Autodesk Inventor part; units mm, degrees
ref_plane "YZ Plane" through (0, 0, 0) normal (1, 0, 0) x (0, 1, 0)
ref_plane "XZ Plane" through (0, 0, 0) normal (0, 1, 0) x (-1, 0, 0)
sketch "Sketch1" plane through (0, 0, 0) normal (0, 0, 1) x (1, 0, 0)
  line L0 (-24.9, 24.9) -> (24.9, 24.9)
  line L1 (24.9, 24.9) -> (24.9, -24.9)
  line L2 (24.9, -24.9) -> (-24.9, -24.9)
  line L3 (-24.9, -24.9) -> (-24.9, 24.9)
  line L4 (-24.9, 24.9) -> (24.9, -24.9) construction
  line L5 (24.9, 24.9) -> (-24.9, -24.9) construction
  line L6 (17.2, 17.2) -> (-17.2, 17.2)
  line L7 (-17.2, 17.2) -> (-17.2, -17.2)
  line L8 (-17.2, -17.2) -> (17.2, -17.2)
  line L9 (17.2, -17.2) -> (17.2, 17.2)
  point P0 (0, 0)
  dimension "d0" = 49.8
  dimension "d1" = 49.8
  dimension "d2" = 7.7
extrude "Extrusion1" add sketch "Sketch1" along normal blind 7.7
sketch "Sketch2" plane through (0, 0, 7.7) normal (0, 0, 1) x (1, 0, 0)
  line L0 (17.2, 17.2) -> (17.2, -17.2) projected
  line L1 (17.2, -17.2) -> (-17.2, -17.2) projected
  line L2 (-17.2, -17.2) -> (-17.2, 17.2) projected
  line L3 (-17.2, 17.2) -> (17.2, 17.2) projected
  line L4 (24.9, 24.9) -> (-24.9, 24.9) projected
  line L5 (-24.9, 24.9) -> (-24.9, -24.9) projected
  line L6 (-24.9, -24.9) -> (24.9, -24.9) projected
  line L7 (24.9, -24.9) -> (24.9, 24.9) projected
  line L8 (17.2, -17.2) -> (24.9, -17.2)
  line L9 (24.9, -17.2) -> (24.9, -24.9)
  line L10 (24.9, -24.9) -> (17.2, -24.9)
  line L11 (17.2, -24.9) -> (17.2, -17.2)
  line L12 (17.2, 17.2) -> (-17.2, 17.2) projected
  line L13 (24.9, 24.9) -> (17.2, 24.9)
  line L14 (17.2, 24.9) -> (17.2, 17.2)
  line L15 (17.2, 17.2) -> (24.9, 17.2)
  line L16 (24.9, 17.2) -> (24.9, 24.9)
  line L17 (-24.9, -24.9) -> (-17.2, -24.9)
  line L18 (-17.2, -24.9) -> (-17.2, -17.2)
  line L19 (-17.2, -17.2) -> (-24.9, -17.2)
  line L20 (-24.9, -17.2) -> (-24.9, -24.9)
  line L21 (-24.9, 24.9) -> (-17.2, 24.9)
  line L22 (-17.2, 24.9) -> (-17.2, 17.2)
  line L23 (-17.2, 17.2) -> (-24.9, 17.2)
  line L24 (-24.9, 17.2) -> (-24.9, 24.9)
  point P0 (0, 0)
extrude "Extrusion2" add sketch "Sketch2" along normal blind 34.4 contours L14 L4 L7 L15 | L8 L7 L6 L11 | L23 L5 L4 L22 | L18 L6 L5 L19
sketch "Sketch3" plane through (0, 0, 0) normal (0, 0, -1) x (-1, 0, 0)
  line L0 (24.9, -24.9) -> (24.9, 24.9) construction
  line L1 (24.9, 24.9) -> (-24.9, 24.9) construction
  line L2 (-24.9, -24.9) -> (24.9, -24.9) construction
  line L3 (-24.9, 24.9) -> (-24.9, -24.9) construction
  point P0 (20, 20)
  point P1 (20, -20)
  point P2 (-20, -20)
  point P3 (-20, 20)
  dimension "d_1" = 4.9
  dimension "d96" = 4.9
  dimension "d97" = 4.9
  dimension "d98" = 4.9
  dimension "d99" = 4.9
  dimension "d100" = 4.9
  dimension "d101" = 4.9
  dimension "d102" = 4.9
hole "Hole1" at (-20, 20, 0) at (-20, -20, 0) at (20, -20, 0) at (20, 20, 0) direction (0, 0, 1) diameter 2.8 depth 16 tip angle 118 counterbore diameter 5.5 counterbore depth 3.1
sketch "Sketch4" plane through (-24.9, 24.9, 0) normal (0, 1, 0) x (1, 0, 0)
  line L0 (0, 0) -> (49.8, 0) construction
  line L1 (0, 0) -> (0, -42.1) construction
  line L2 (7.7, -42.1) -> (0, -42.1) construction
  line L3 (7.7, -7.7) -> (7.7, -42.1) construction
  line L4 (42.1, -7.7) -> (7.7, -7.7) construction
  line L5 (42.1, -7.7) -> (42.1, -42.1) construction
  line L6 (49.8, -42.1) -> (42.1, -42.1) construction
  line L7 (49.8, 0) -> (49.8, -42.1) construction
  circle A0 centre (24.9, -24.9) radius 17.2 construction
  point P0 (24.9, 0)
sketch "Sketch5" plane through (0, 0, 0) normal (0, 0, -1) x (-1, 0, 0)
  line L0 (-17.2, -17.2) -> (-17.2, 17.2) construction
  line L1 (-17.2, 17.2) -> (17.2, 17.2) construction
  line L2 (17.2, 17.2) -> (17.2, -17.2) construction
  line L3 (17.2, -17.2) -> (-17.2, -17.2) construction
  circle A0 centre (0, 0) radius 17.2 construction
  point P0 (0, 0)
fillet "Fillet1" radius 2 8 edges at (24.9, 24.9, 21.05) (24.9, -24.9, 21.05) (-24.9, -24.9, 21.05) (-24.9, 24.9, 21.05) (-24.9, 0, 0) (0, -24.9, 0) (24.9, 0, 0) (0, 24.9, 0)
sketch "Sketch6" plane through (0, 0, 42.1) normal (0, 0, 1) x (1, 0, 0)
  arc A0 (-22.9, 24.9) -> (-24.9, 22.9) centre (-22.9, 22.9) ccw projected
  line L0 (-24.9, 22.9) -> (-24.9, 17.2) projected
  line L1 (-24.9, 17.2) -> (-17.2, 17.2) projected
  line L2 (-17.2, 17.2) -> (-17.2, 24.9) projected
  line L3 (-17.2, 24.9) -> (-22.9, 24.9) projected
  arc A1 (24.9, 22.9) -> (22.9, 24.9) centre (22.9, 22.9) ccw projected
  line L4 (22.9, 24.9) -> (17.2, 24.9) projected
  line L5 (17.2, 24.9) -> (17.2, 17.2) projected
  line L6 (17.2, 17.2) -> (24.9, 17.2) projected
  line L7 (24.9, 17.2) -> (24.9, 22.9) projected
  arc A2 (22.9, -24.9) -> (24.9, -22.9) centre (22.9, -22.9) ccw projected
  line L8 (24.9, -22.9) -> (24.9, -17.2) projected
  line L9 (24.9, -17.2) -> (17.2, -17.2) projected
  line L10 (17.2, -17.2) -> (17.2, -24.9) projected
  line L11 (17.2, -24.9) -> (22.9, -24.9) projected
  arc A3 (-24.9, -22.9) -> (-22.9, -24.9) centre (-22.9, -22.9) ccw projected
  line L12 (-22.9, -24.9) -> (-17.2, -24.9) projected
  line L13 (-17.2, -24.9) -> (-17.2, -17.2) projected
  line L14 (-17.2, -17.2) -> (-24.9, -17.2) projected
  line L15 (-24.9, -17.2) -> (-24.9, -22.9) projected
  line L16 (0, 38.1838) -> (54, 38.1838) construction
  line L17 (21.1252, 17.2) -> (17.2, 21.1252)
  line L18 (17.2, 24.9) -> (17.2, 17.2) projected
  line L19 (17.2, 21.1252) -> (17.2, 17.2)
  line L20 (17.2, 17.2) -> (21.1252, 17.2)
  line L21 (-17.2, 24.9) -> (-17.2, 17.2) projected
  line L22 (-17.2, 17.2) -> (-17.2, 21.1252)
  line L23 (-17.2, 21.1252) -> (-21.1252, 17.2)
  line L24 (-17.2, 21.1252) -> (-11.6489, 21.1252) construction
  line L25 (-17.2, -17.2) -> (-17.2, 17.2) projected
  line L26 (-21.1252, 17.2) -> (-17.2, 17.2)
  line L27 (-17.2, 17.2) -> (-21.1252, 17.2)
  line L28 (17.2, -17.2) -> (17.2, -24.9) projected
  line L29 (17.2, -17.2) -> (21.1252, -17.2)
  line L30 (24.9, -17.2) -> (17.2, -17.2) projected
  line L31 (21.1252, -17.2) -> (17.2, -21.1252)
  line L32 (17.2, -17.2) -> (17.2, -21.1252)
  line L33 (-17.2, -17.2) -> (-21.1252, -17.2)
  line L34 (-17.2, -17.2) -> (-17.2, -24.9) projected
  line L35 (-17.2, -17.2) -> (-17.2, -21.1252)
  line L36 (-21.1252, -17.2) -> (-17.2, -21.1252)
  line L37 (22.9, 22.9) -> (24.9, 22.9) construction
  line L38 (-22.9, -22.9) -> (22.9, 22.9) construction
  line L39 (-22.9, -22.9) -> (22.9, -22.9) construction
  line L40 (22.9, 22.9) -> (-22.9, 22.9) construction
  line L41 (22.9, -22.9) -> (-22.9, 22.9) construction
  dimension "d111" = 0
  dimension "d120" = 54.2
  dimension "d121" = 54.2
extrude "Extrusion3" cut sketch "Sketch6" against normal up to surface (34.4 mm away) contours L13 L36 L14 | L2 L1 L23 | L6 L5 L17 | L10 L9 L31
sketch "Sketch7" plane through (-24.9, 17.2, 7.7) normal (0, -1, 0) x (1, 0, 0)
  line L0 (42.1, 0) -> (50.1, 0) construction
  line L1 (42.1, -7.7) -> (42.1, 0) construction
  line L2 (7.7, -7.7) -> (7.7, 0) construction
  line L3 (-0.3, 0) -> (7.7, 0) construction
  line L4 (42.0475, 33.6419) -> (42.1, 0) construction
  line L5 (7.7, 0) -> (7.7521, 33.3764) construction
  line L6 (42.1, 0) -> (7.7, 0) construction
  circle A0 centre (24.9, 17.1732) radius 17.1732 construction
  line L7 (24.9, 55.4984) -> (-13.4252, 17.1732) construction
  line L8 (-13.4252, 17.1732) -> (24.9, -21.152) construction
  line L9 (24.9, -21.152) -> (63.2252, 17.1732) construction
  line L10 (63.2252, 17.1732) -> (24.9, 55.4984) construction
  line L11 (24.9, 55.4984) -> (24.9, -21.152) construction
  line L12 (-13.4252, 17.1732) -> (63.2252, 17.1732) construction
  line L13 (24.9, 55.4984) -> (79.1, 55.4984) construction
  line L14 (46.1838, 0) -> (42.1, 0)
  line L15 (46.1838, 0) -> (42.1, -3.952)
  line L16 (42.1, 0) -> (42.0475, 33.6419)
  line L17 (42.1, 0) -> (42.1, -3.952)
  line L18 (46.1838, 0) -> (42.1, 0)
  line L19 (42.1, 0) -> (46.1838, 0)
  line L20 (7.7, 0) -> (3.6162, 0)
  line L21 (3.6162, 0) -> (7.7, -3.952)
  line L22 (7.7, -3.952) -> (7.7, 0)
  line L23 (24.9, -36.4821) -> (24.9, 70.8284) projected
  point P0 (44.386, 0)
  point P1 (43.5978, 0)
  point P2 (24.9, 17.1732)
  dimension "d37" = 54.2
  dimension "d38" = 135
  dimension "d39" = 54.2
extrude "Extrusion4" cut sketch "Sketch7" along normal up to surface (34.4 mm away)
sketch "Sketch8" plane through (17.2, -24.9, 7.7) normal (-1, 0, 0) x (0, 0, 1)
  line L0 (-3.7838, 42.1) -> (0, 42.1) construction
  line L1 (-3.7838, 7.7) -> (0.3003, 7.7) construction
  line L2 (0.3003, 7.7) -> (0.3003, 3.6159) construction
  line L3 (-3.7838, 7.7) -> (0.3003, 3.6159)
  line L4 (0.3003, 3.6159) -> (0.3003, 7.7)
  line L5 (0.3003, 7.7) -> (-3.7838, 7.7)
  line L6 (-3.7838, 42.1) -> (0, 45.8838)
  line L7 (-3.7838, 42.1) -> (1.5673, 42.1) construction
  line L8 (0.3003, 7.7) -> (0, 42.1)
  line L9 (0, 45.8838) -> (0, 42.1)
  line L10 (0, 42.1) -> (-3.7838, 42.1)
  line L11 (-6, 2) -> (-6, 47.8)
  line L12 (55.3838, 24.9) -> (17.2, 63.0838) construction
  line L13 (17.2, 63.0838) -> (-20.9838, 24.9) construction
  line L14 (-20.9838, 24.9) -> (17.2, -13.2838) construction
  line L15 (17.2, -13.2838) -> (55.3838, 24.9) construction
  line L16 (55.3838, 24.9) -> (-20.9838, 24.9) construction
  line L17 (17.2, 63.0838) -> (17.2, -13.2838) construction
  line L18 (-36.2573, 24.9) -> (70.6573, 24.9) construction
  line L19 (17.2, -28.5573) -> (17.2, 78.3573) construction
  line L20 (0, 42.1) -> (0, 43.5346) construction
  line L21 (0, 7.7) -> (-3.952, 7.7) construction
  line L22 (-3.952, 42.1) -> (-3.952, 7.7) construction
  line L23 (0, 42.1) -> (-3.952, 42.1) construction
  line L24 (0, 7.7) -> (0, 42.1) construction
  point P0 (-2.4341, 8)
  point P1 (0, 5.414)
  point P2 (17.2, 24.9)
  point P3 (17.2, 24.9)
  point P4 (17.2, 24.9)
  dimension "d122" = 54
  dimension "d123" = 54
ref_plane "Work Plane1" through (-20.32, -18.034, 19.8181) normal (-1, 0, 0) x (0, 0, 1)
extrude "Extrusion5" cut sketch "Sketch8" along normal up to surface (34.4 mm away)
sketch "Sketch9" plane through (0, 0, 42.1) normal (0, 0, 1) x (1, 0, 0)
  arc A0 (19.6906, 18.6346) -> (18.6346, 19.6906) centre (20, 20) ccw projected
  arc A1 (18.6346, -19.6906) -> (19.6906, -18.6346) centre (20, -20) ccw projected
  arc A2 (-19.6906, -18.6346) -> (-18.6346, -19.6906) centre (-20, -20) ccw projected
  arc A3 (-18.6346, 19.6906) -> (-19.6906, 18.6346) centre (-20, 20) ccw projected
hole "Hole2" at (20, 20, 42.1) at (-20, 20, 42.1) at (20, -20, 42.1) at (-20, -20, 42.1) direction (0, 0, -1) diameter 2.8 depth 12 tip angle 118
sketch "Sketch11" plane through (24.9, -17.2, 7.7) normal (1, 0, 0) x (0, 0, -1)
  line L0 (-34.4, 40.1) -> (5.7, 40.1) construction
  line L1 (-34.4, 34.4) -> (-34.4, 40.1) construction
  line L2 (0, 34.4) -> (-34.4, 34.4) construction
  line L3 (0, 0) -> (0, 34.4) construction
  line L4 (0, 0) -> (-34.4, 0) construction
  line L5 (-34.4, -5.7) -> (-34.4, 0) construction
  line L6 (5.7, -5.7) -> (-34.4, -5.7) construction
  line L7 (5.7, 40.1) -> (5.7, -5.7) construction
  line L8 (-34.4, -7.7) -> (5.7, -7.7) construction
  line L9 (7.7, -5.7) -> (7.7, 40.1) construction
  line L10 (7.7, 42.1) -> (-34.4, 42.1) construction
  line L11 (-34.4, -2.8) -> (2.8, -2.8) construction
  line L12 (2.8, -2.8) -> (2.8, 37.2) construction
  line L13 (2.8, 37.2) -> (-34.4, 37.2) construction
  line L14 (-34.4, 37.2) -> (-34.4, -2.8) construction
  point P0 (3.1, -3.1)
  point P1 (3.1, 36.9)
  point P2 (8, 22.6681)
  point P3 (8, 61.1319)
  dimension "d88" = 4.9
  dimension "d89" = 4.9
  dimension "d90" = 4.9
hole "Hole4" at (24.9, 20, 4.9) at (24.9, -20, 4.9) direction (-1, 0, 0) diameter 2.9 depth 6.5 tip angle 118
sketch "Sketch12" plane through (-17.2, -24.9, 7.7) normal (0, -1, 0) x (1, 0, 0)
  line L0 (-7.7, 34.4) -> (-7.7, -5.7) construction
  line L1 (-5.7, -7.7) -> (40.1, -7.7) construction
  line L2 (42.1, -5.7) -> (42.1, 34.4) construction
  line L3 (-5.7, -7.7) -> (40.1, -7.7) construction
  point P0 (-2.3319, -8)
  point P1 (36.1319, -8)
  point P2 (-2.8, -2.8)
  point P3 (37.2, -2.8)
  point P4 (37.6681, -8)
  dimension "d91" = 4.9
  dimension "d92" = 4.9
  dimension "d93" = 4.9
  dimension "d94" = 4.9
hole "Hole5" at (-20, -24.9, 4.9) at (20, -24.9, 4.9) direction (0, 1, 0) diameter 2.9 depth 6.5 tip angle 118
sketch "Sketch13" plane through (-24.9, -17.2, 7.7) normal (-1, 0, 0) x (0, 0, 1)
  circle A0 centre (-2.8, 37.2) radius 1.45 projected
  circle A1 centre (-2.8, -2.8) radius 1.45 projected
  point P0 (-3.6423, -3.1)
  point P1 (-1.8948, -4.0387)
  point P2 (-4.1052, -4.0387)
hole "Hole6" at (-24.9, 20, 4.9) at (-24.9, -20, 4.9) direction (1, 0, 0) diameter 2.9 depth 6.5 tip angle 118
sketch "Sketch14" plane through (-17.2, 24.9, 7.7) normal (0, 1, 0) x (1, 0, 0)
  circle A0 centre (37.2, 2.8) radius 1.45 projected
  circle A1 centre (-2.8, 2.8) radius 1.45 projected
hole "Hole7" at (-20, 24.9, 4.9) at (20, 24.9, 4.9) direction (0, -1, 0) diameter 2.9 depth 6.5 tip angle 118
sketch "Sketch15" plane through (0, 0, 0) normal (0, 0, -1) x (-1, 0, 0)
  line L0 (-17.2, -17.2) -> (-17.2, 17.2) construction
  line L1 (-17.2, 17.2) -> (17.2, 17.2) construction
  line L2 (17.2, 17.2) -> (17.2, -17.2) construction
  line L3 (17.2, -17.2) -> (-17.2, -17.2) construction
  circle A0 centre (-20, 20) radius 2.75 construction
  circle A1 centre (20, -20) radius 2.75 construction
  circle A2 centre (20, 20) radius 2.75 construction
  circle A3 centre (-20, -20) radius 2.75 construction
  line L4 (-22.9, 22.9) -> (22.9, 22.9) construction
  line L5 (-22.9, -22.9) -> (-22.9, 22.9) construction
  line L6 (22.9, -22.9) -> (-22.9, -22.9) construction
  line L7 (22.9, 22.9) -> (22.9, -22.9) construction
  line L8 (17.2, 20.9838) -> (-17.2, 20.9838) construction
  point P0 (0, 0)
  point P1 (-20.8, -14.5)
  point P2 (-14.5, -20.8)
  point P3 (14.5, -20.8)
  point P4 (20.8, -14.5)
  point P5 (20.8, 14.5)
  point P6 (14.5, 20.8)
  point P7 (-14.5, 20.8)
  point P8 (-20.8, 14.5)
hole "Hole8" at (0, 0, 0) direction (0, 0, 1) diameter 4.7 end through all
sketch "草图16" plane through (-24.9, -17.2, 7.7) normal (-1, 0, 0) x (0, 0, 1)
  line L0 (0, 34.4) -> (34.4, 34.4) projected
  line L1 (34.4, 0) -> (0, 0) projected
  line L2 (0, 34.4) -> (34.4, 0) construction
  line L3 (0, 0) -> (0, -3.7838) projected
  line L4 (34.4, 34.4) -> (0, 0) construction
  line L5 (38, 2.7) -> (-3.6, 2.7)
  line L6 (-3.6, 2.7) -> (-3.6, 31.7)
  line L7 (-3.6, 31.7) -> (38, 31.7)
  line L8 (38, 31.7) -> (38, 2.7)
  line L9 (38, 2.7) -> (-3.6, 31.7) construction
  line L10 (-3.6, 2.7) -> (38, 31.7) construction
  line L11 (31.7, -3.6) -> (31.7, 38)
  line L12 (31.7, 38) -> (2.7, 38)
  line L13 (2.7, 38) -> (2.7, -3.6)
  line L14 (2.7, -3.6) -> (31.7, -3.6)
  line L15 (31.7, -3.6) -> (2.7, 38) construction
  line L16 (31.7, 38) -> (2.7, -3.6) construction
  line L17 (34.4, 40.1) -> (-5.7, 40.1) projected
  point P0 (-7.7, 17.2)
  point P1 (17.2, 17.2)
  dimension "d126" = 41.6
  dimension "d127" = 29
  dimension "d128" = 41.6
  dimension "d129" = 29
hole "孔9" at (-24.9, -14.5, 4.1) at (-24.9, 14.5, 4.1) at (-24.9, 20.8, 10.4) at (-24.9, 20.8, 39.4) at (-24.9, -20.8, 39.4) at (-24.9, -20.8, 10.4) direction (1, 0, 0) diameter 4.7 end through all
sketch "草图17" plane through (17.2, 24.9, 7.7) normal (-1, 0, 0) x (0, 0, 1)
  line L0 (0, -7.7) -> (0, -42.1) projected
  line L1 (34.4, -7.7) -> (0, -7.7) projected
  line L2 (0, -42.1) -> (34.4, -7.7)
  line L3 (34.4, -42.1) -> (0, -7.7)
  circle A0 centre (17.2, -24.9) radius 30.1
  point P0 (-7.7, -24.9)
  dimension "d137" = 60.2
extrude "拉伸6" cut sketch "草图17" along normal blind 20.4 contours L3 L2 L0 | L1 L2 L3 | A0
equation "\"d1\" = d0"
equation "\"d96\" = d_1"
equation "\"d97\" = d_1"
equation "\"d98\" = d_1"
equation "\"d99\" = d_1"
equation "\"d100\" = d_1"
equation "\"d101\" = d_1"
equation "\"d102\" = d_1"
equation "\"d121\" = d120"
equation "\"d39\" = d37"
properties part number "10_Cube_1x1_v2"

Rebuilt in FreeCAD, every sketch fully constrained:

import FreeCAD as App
import Part
import Sketcher

V = App.Vector
Q = App.Units.Quantity


def edges_at(feature, points):
    """Names of the edges that pass closest to the given points."""
    edges = feature.Shape.Edges
    near = lambda p: min(range(len(edges)), key=lambda i: edges[i].distToShape(Part.Vertex(*p))[0])
    return sorted({f"Edge{near(p) + 1}" for p in points})


def add_polygon(sketch, points):
    """Adds a closed chain of lines whose ends are joined by coincident constraints."""
    first, n = sketch.GeometryCount, len(points)
    for a, b in zip(points, points[1:] + points[:1]):
        sketch.addGeometry(Part.LineSegment(App.Vector(*a, 0), App.Vector(*b, 0)), False)
    for i in range(n):
        sketch.addConstraint(Sketcher.Constraint("Coincident", first + i, 2, first + (i + 1) % n, 1))

doc = App.newDocument("Part")
body = doc.addObject("PartDesign::Body", "Body")

sketch1 = body.newObject("Sketcher::SketchObject", "Sketch")
sketch1.AttachmentSupport = (doc.getObject("XY_Plane"), [""])
sketch1.MapMode = "FlatFace"
add_polygon(sketch1, [(25, 25), (-25, 25), (-25, -25), (25, -25)])
add_polygon(sketch1, [(-17, 17), (17, 17), (17, -17), (-17, -17)])
sketch1.addConstraint(Sketcher.Constraint("Horizontal", 0))
sketch1.addConstraint(Sketcher.Constraint("Vertical", 1))
sketch1.addConstraint(Sketcher.Constraint("Horizontal", 2))
sketch1.addConstraint(Sketcher.Constraint("Vertical", 3))
sketch1.addConstraint(Sketcher.Constraint("Horizontal", 4))
sketch1.addConstraint(Sketcher.Constraint("Vertical", 5))
sketch1.addConstraint(Sketcher.Constraint("Horizontal", 6))
sketch1.addConstraint(Sketcher.Constraint("Vertical", 7))
sketch1.addConstraint(Sketcher.Constraint("Symmetric", 0, 2, 2, 2, -1, 1))
sketch1.addConstraint(Sketcher.Constraint("Symmetric", 4, 2, 6, 2, -1, 1))
sketch1.addConstraint(Sketcher.Constraint("Equal", 2, 1))
sketch1.addConstraint(Sketcher.Constraint("Equal", 6, 5))
sketch1.addConstraint(Sketcher.Constraint("DistanceX", 0, 2, 0, 1, Q("49.8 mm")))
sketch1.addConstraint(Sketcher.Constraint("DistanceX", 4, 2, 3, 2, Q("7.7 mm")))
pad1 = body.newObject("PartDesign::Pad", "Pad")
pad1.Profile = sketch1
pad1.Length = 7.7

sketch2 = body.newObject("Sketcher::SketchObject", "Sketch001")
sketch2.AttachmentSupport = (doc.getObject("XY_Plane"), [""])
sketch2.MapMode = "FlatFace"
sketch2.AttachmentOffset = App.Placement(V(0, 0, 7.7), App.Rotation())
add_polygon(sketch2, [(17, 25), (17, 17), (25, 17), (25, 25)])
add_polygon(sketch2, [(25, -17), (17, -17), (17, -25), (25, -25)])
add_polygon(sketch2, [(-25, 17), (-17, 17), (-17, 25), (-25, 25)])
add_polygon(sketch2, [(-17, -25), (-17, -17), (-25, -17), (-25, -25)])
sketch2.addConstraint(Sketcher.Constraint("Vertical", 0))
sketch2.addConstraint(Sketcher.Constraint("Horizontal", 1))
sketch2.addConstraint(Sketcher.Constraint("Vertical", 2))
sketch2.addConstraint(Sketcher.Constraint("Horizontal", 3))
sketch2.addConstraint(Sketcher.Constraint("Horizontal", 4))
sketch2.addConstraint(Sketcher.Constraint("Vertical", 5))
sketch2.addConstraint(Sketcher.Constraint("Horizontal", 6))
sketch2.addConstraint(Sketcher.Constraint("Vertical", 7))
sketch2.addConstraint(Sketcher.Constraint("Horizontal", 8))
sketch2.addConstraint(Sketcher.Constraint("Vertical", 9))
sketch2.addConstraint(Sketcher.Constraint("Horizontal", 10))
sketch2.addConstraint(Sketcher.Constraint("Vertical", 11))
sketch2.addConstraint(Sketcher.Constraint("Vertical", 12))
sketch2.addConstraint(Sketcher.Constraint("Horizontal", 13))
sketch2.addConstraint(Sketcher.Constraint("Vertical", 14))
sketch2.addConstraint(Sketcher.Constraint("Horizontal", 15))
sketch2.addConstraint(Sketcher.Constraint("Symmetric", 4, 2, 8, 2, -1, 1))
sketch2.addConstraint(Sketcher.Constraint("Symmetric", 6, 2, 10, 2, -1, 1))
sketch2.addConstraint(Sketcher.Constraint("Symmetric", 0, 2, 12, 2, -1, 1))
sketch2.addConstraint(Sketcher.Constraint("Symmetric", 2, 2, 14, 2, -1, 1))
sketch2.addConstraint(Sketcher.Constraint("Symmetric", 0, 2, 8, 2, -2))
sketch2.addConstraint(Sketcher.Constraint("Symmetric", 2, 2, 10, 2, -2))
sketch2.addConstraint(Sketcher.Constraint("Equal", 15, 0))
sketch2.addConstraint(Sketcher.Constraint("DistanceX", 1, 1, 1, 2, Q("7.7 mm")))
sketch2.addConstraint(Sketcher.Constraint("DistanceX", -1, 1, 0, 2, Q("17.2 mm")))
sketch2.addConstraint(Sketcher.Constraint("DistanceY", -1, 1, 0, 2, Q("17.2 mm")))
pad2 = body.newObject("PartDesign::Pad", "Pad001")
pad2.Profile = sketch2
pad2.Length = 34.4

sketch3 = body.newObject("Sketcher::SketchObject", "Sketch002")
sketch3.AttachmentSupport = (doc.getObject("XY_Plane"), [""])
sketch3.MapMode = "FlatFace"
sketch3.addGeometry(Part.Circle(V(-20, 20, 0), V(0, 0, 1), 1.4), False)
sketch3.addGeometry(Part.Circle(V(-20, -20, 0), V(0, 0, 1), 1.4), False)
sketch3.addGeometry(Part.Circle(V(20, -20, 0), V(0, 0, 1), 1.4), False)
sketch3.addGeometry(Part.Circle(V(20, 20, 0), V(0, 0, 1), 1.4), False)
sketch3.addConstraint(Sketcher.Constraint("Equal", 0, 1))
sketch3.addConstraint(Sketcher.Constraint("Equal", 1, 2))
sketch3.addConstraint(Sketcher.Constraint("Equal", 2, 3))
sketch3.addConstraint(Sketcher.Constraint("Symmetric", 0, 3, 2, 3, -1, 1))
sketch3.addConstraint(Sketcher.Constraint("Symmetric", 1, 3, 3, 3, -1, 1))
sketch3.addConstraint(Sketcher.Constraint("Symmetric", 1, 3, 2, 3, -2))
sketch3.addConstraint(Sketcher.Constraint("Diameter", 0, Q("2.8 mm")))
sketch3.addConstraint(Sketcher.Constraint("DistanceX", 0, 3, -1, 1, Q("20 mm")))
sketch3.addConstraint(Sketcher.Constraint("DistanceY", -1, 1, 0, 3, Q("20 mm")))
doc.recompute()
hole = body.newObject("PartDesign::Hole", "Hole")
hole.Profile = sketch3
hole.ThreadType = "None"
hole.Diameter = 2.8
hole.DepthType = "Dimension"
hole.Depth = 16
hole.DrillPoint = "Angled"
hole.DrillPointAngle = 118
hole.HoleCutType = "Counterbore"
hole.HoleCutDiameter = 5.5
hole.HoleCutDepth = 3.1
hole.Reversed = True
doc.recompute()

fillet = body.newObject("PartDesign::Fillet", "Fillet")
fillet.Base = (hole, edges_at(hole, [
    (24.9, 24.9, 21.05),
    (24.9, -24.9, 21.05),
    (-24.9, -24.9, 21.05),
    (-24.9, 24.9, 21.05),
    (-24.9, 0, 0),
    (0, -24.9, 0),
    (24.9, 0, 0),
    (0, 24.9, 0),
]))
fillet.Radius = 2

sketch4 = body.newObject("Sketcher::SketchObject", "Sketch003")
sketch4.AttachmentSupport = (doc.getObject("XY_Plane"), [""])
sketch4.MapMode = "FlatFace"
sketch4.AttachmentOffset = App.Placement(V(0, 0, 42.1), App.Rotation())
add_polygon(sketch4, [(-17.2, -21.1), (-17.2, -17.2), (-21.1, -17.2)])
add_polygon(sketch4, [(-17.2, 17.2), (-17.2, 21.1), (-21.1, 17.2)])
add_polygon(sketch4, [(17.2, 17.2), (21.1, 17.2), (17.2, 21.1)])
add_polygon(sketch4, [(17.2, -17.2), (17.2, -21.1), (21.1, -17.2)])
sketch4.addConstraint(Sketcher.Constraint("Vertical", 0))
sketch4.addConstraint(Sketcher.Constraint("Horizontal", 1))
sketch4.addConstraint(Sketcher.Constraint("Vertical", 3))
sketch4.addConstraint(Sketcher.Constraint("Horizontal", 5))
sketch4.addConstraint(Sketcher.Constraint("Horizontal", 6))
sketch4.addConstraint(Sketcher.Constraint("Vertical", 8))
sketch4.addConstraint(Sketcher.Constraint("Vertical", 9))
sketch4.addConstraint(Sketcher.Constraint("Horizontal", 11))
sketch4.addConstraint(Sketcher.Constraint("Symmetric", 1, 2, 6, 2, -1, 1))
sketch4.addConstraint(Sketcher.Constraint("Symmetric", 2, 2, 7, 2, -1, 1))
sketch4.addConstraint(Sketcher.Constraint("Symmetric", 3, 2, 9, 2, -1, 1))
sketch4.addConstraint(Sketcher.Constraint("Symmetric", 4, 2, 10, 2, -1, 1))
sketch4.addConstraint(Sketcher.Constraint("Symmetric", 4, 2, 6, 2, -2))
sketch4.addConstraint(Sketcher.Constraint("Symmetric", 3, 2, 7, 2, -2))
sketch4.addConstraint(Sketcher.Constraint("Perpendicular", 2, 4))
sketch4.addConstraint(Sketcher.Constraint("DistanceX", 0, 2, -1, 1, Q("17.2 mm")))
sketch4.addConstraint(Sketcher.Constraint("DistanceY", 0, 2, -1, 1, Q("17.2 mm")))
sketch4.addConstraint(Sketcher.Constraint("Distance", 2, Q("5.551 mm")))
pocket1 = body.newObject("PartDesign::Pocket", "Pocket")
pocket1.Profile = sketch4
pocket1.Length = 34.4

sketch5 = body.newObject("Sketcher::SketchObject", "Sketch004")
sketch5.AttachmentSupport = (doc.getObject("XZ_Plane"), [""])
sketch5.MapMode = "FlatFace"
sketch5.AttachmentOffset = App.Placement(V(0, 0, -17.2), App.Rotation())
add_polygon(sketch5, [(17.2, 3.7), (21.3, 7.7), (17.2, 7.7)])
add_polygon(sketch5, [(-17.2, 3.7), (-17.2, 7.7), (-21.3, 7.7)])
sketch5.addConstraint(Sketcher.Constraint("Horizontal", 1))
sketch5.addConstraint(Sketcher.Constraint("Vertical", 2))
sketch5.addConstraint(Sketcher.Constraint("Vertical", 3))
sketch5.addConstraint(Sketcher.Constraint("Horizontal", 4))
sketch5.addConstraint(Sketcher.Constraint("Symmetric", 1, 2, 3, 2, -2))
sketch5.addConstraint(Sketcher.Constraint("Horizontal", 2, 2, 5, 2))
sketch5.addConstraint(Sketcher.Constraint("Equal", 1, 4))
sketch5.addConstraint(Sketcher.Constraint("DistanceY", -1, 1, 0, 2, Q("7.7 mm")))
sketch5.addConstraint(Sketcher.Constraint("DistanceX", -1, 1, 1, 2, Q("17.2 mm")))
sketch5.addConstraint(Sketcher.Constraint("Angle", 0, Q("44.0603 deg")))
sketch5.addConstraint(Sketcher.Constraint("DistanceY", 2, 2, 2, 1, Q("3.952 mm")))
pocket2 = body.newObject("PartDesign::Pocket", "Pocket001")
pocket2.Profile = sketch5
pocket2.Length = 34.4
pocket2.Reversed = True

sketch6 = body.newObject("Sketcher::SketchObject", "Sketch005")
sketch6.AttachmentSupport = (doc.getObject("YZ_Plane"), [""])
sketch6.MapMode = "FlatFace"
sketch6.AttachmentOffset = App.Placement(V(0, 0, 17.2), App.Rotation())
add_polygon(sketch6, [(-17.2, 8), (-17.2, 3.9), (-21.3, 8)])
add_polygon(sketch6, [(17.2, 3.9), (17.2, 7.7), (21, 7.7)])
sketch6.addConstraint(Sketcher.Constraint("Vertical", 0))
sketch6.addConstraint(Sketcher.Constraint("Horizontal", 2))
sketch6.addConstraint(Sketcher.Constraint("Vertical", 3))
sketch6.addConstraint(Sketcher.Constraint("Horizontal", 4))
sketch6.addConstraint(Sketcher.Constraint("Symmetric", 0, 2, 5, 2, -2))
sketch6.addConstraint(Sketcher.Constraint("Perpendicular", 1, 5))
sketch6.addConstraint(Sketcher.Constraint("Equal", 2, 0))
sketch6.addConstraint(Sketcher.Constraint("DistanceX", 0, 2, -1, 1, Q("17.2 mm")))
sketch6.addConstraint(Sketcher.Constraint("DistanceY", -1, 1, 3, 2, Q("7.7 mm")))
sketch6.addConstraint(Sketcher.Constraint("DistanceX", 2, 1, 2, 2, Q("4.084 mm")))
sketch6.addConstraint(Sketcher.Constraint("Distance", 5, Q("5.351 mm")))
pocket3 = body.newObject("PartDesign::Pocket", "Pocket002")
pocket3.Profile = sketch6
pocket3.Length = 34.4

sketch7 = body.newObject("Sketcher::SketchObject", "Sketch006")
sketch7.AttachmentSupport = (doc.getObject("XY_Plane"), [""])
sketch7.MapMode = "FlatFace"
sketch7.AttachmentOffset = App.Placement(V(0, 0, 42.1), App.Rotation())
sketch7.addGeometry(Part.Circle(V(20, 20, 0), V(0, 0, 1), 1.4), False)
sketch7.addGeometry(Part.Circle(V(-20, 20, 0), V(0, 0, 1), 1.4), False)
sketch7.addGeometry(Part.Circle(V(20, -20, 0), V(0, 0, 1), 1.4), False)
sketch7.addGeometry(Part.Circle(V(-20, -20, 0), V(0, 0, 1), 1.4), False)
sketch7.addConstraint(Sketcher.Constraint("Equal", 0, 1))
sketch7.addConstraint(Sketcher.Constraint("Equal", 1, 2))
sketch7.addConstraint(Sketcher.Constraint("Equal", 2, 3))
sketch7.addConstraint(Sketcher.Constraint("Symmetric", 1, 3, 2, 3, -1, 1))
sketch7.addConstraint(Sketcher.Constraint("Symmetric", 0, 3, 3, 3, -1, 1))
sketch7.addConstraint(Sketcher.Constraint("Symmetric", 0, 3, 1, 3, -2))
sketch7.addConstraint(Sketcher.Constraint("Diameter", 0, Q("2.8 mm")))
sketch7.addConstraint(Sketcher.Constraint("DistanceX", -1, 1, 0, 3, Q("20 mm")))
sketch7.addConstraint(Sketcher.Constraint("DistanceY", -1, 1, 0, 3, Q("20 mm")))
doc.recompute()
hole2 = body.newObject("PartDesign::Hole", "Hole001")
hole2.Profile = sketch7
hole2.ThreadType = "None"
hole2.Diameter = 2.8
hole2.DepthType = "Dimension"
hole2.Depth = 12
hole2.DrillPoint = "Angled"
hole2.DrillPointAngle = 118

sketch8 = body.newObject("Sketcher::SketchObject", "Sketch007")
sketch8.AttachmentSupport = (doc.getObject("YZ_Plane"), [""])
sketch8.MapMode = "FlatFace"
sketch8.AttachmentOffset = App.Placement(V(0, 0, 24.9), App.Rotation())
sketch8.addGeometry(Part.Circle(V(20, 4.9, 0), V(0, 0, 1), 1.4), False)
sketch8.addGeometry(Part.Circle(V(-20, 4.9, 0), V(0, 0, 1), 1.4), False)
sketch8.addConstraint(Sketcher.Constraint("Equal", 0, 1))
sketch8.addConstraint(Sketcher.Constraint("Symmetric", 0, 3, 1, 3, -2))
sketch8.addConstraint(Sketcher.Constraint("Diameter", 0, Q("2.9 mm")))
sketch8.addConstraint(Sketcher.Constraint("DistanceX", -1, 1, 0, 3, Q("20 mm")))
sketch8.addConstraint(Sketcher.Constraint("DistanceY", -1, 1, 0, 3, Q("4.9 mm")))
doc.recompute()
hole3 = body.newObject("PartDesign::Hole", "Hole002")
hole3.Profile = sketch8
hole3.ThreadType = "None"
hole3.Diameter = 2.9
hole3.DepthType = "Dimension"
hole3.Depth = 6.5
hole3.DrillPoint = "Angled"
hole3.DrillPointAngle = 118

sketch9 = body.newObject("Sketcher::SketchObject", "Sketch008")
sketch9.AttachmentSupport = (doc.getObject("XZ_Plane"), [""])
sketch9.MapMode = "FlatFace"
sketch9.AttachmentOffset = App.Placement(V(0, 0, 24.9), App.Rotation())
sketch9.addGeometry(Part.Circle(V(-20, 4.9, 0), V(0, 0, 1), 1.4), False)
sketch9.addGeometry(Part.Circle(V(20, 4.9, 0), V(0, 0, 1), 1.4), False)
sketch9.addConstraint(Sketcher.Constraint("Equal", 0, 1))
sketch9.addConstraint(Sketcher.Constraint("Symmetric", 0, 3, 1, 3, -2))
sketch9.addConstraint(Sketcher.Constraint("Diameter", 0, Q("2.9 mm")))
sketch9.addConstraint(Sketcher.Constraint("DistanceX", 0, 3, -1, 1, Q("20 mm")))
sketch9.addConstraint(Sketcher.Constraint("DistanceY", -1, 1, 0, 3, Q("4.9 mm")))
doc.recompute()
hole4 = body.newObject("PartDesign::Hole", "Hole003")
hole4.Profile = sketch9
hole4.ThreadType = "None"
hole4.Diameter = 2.9
hole4.DepthType = "Dimension"
hole4.Depth = 6.5
hole4.DrillPoint = "Angled"
hole4.DrillPointAngle = 118

sketch10 = body.newObject("Sketcher::SketchObject", "Sketch009")
sketch10.AttachmentSupport = (doc.getObject("YZ_Plane"), [""])
sketch10.MapMode = "FlatFace"
sketch10.AttachmentOffset = App.Placement(V(0, 0, -24.9), App.Rotation())
sketch10.addGeometry(Part.Circle(V(20, 4.9, 0), V(0, 0, 1), 1.4), False)
sketch10.addGeometry(Part.Circle(V(-20, 4.9, 0), V(0, 0, 1), 1.4), False)
sketch10.addConstraint(Sketcher.Constraint("Equal", 0, 1))
sketch10.addConstraint(Sketcher.Constraint("Symmetric", 0, 3, 1, 3, -2))
sketch10.addConstraint(Sketcher.Constraint("Diameter", 0, Q("2.9 mm")))
sketch10.addConstraint(Sketcher.Constraint("DistanceX", -1, 1, 0, 3, Q("20 mm")))
sketch10.addConstraint(Sketcher.Constraint("DistanceY", -1, 1, 0, 3, Q("4.9 mm")))
doc.recompute()
hole5 = body.newObject("PartDesign::Hole", "Hole004")
hole5.Profile = sketch10
hole5.ThreadType = "None"
hole5.Diameter = 2.9
hole5.DepthType = "Dimension"
hole5.Depth = 6.5
hole5.DrillPoint = "Angled"
hole5.DrillPointAngle = 118
hole5.Reversed = True

sketch11 = body.newObject("Sketcher::SketchObject", "Sketch010")
sketch11.AttachmentSupport = (doc.getObject("XZ_Plane"), [""])
sketch11.MapMode = "FlatFace"
sketch11.AttachmentOffset = App.Placement(V(0, 0, -24.9), App.Rotation())
sketch11.addGeometry(Part.Circle(V(-20, 4.9, 0), V(0, 0, 1), 1.4), False)
sketch11.addGeometry(Part.Circle(V(20, 4.9, 0), V(0, 0, 1), 1.4), False)
sketch11.addConstraint(Sketcher.Constraint("Equal", 0, 1))
sketch11.addConstraint(Sketcher.Constraint("Symmetric", 0, 3, 1, 3, -2))
sketch11.addConstraint(Sketcher.Constraint("Diameter", 0, Q("2.9 mm")))
sketch11.addConstraint(Sketcher.Constraint("DistanceX", 0, 3, -1, 1, Q("20 mm")))
sketch11.addConstraint(Sketcher.Constraint("DistanceY", -1, 1, 0, 3, Q("4.9 mm")))
doc.recompute()
hole6 = body.newObject("PartDesign::Hole", "Hole005")
hole6.Profile = sketch11
hole6.ThreadType = "None"
hole6.Diameter = 2.9
hole6.DepthType = "Dimension"
hole6.Depth = 6.5
hole6.DrillPoint = "Angled"
hole6.DrillPointAngle = 118
hole6.Reversed = True

sketch12 = body.newObject("Sketcher::SketchObject", "Sketch011")
sketch12.AttachmentSupport = (doc.getObject("XY_Plane"), [""])
sketch12.MapMode = "FlatFace"
sketch12.addGeometry(Part.Circle(V(0, 0, 0), V(0, 0, 1), 2.4), False)
sketch12.addConstraint(Sketcher.Constraint("Coincident", 0, 3, -1, 1))
sketch12.addConstraint(Sketcher.Constraint("Diameter", 0, Q("4.7 mm")))
doc.recompute()
hole7 = body.newObject("PartDesign::Hole", "Hole006")
hole7.Profile = sketch12
hole7.ThreadType = "None"
hole7.Diameter = 4.7
hole7.DepthType = "ThroughAll"
hole7.Reversed = True

sketch13 = body.newObject("Sketcher::SketchObject", "Sketch012")
sketch13.AttachmentSupport = (doc.getObject("YZ_Plane"), [""])
sketch13.MapMode = "FlatFace"
sketch13.AttachmentOffset = App.Placement(V(0, 0, -24.9), App.Rotation())
sketch13.addGeometry(Part.Circle(V(-14.5, 4.1, 0), V(0, 0, 1), 2.4), False)
sketch13.addGeometry(Part.Circle(V(14.5, 4.1, 0), V(0, 0, 1), 2.4), False)
sketch13.addGeometry(Part.Circle(V(20.8, 10.4, 0), V(0, 0, 1), 2.4), False)
sketch13.addGeometry(Part.Circle(V(20.8, 39.4, 0), V(0, 0, 1), 2.4), False)
sketch13.addGeometry(Part.Circle(V(-20.8, 39.4, 0), V(0, 0, 1), 2.4), False)
sketch13.addGeometry(Part.Circle(V(-20.8, 10.4, 0), V(0, 0, 1), 2.4), False)
sketch13.addConstraint(Sketcher.Constraint("Equal", 0, 1))
sketch13.addConstraint(Sketcher.Constraint("Equal", 1, 2))
sketch13.addConstraint(Sketcher.Constraint("Equal", 2, 3))
sketch13.addConstraint(Sketcher.Constraint("Equal", 3, 4))
sketch13.addConstraint(Sketcher.Constraint("Equal", 4, 5))
sketch13.addConstraint(Sketcher.Constraint("Symmetric", 0, 3, 1, 3, -2))
sketch13.addConstraint(Sketcher.Constraint("Symmetric", 3, 3, 4, 3, -2))
sketch13.addConstraint(Sketcher.Constraint("Symmetric", 2, 3, 5, 3, -2))
sketch13.addConstraint(Sketcher.Constraint("Vertical", 2, 3, 3, 3))
sketch13.addConstraint(Sketcher.Constraint("Diameter", 0, Q("4.7 mm")))
sketch13.addConstraint(Sketcher.Constraint("DistanceX", 0, 3, 1, 3, Q("29 mm")))
sketch13.addConstraint(Sketcher.Constraint("DistanceY", 2, 3, 3, 3, Q("29 mm")))
sketch13.addConstraint(Sketcher.Constraint("DistanceY", -1, 1, 0, 3, Q("4.1 mm")))
sketch13.addConstraint(Sketcher.Constraint("DistanceX", -1, 1, 2, 3, Q("20.8 mm")))
sketch13.addConstraint(Sketcher.Constraint("DistanceY", -1, 1, 2, 3, Q("10.4 mm")))
doc.recompute()
hole8 = body.newObject("PartDesign::Hole", "Hole007")
hole8.Profile = sketch13
hole8.ThreadType = "None"
hole8.Diameter = 4.7
hole8.DepthType = "ThroughAll"
hole8.Reversed = True

sketch14 = body.newObject("Sketcher::SketchObject", "Sketch013")
sketch14.AttachmentSupport = (doc.getObject("YZ_Plane"), [""])
sketch14.MapMode = "FlatFace"
sketch14.AttachmentOffset = App.Placement(V(0, 0, 17.2), App.Rotation())
sketch14.addGeometry(Part.Circle(V(0, 25, 0), V(0, 0, 1), 30), False)
sketch14.addConstraint(Sketcher.Constraint("PointOnObject", 0, 3, -2))
sketch14.addConstraint(Sketcher.Constraint("Diameter", 0, Q("60.2 mm")))
sketch14.addConstraint(Sketcher.Constraint("DistanceY", -1, 1, 0, 3, Q("24.9 mm")))
pocket4 = body.newObject("PartDesign::Pocket", "Pocket003")
pocket4.Profile = sketch14
pocket4.Length = 20.4

doc.recompute()
